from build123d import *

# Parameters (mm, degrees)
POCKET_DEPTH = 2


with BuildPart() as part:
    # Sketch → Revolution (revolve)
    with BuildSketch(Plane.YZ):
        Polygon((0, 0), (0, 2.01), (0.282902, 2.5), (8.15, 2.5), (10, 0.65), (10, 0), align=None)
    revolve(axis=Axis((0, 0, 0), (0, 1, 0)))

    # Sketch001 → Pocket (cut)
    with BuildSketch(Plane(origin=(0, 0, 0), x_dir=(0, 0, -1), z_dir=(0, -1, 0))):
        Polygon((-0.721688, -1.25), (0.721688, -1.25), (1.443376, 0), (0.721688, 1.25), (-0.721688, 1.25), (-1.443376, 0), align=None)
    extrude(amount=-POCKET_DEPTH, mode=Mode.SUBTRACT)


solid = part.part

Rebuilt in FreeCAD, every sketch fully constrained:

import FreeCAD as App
import Part
import Sketcher
Q = App.Units.Quantity


def add_polygon(sketch, points):
    """Adds a closed chain of lines whose ends are joined by coincident constraints."""
    first, n = sketch.GeometryCount, len(points)
    for a, b in zip(points, points[1:] + points[:1]):
        sketch.addGeometry(Part.LineSegment(App.Vector(*a, 0), App.Vector(*b, 0)), False)
    for i in range(n):
        sketch.addConstraint(Sketcher.Constraint("Coincident", first + i, 2, first + (i + 1) % n, 1))

doc = App.newDocument("Part")
body = doc.addObject("PartDesign::Body", "Body")

# Sketch on YZ plane
sketch1 = body.newObject("Sketcher::SketchObject", "Sketch")
sketch1.AttachmentSupport = (doc.getObject("YZ_Plane"), [""])
sketch1.MapMode = "FlatFace"
add_polygon(sketch1, [(0, 2), (0, 0), (10, 0), (10, 0.7), (8.2, 2.5), (0.3, 2.5)])  # lines 0-5
sketch1.addConstraint([
    Sketcher.Constraint("Vertical", 0),
    Sketcher.Constraint("Horizontal", 1),
    Sketcher.Constraint("Vertical", 2),
    Sketcher.Constraint("Horizontal", 4),
    Sketcher.Constraint("Coincident", 0, 2, -1, 1),
    Sketcher.Constraint("DistanceX", 1, 1, 1, 2, Q("10 mm")),
    Sketcher.Constraint("Angle", 3, Q("135 deg")),
    Sketcher.Constraint("DistanceY", 0, 2, 0, 1, Q("2.01 mm")),
    Sketcher.Constraint("DistanceY", 2, 1, 2, 2, Q("0.65 mm")),
    Sketcher.Constraint("DistanceY", -1, 1, 3, 2, Q("2.5 mm")),
    Sketcher.Constraint("DistanceX", 4, 2, 4, 1, Q("7.867098 mm")),
])
revolution = body.newObject("PartDesign::Revolution", "Revolution")
revolution.Profile = sketch1
revolution.ReferenceAxis = (sketch1, ["H_Axis"])
revolution.Angle = 360

# Sketch on XZ plane
sketch2 = body.newObject("Sketcher::SketchObject", "Sketch001")
sketch2.AttachmentSupport = (doc.getObject("XZ_Plane"), [""])
sketch2.MapMode = "FlatFace"
add_polygon(sketch2, [(-1.2, 0.7), (-1.2, -0.7), (0, -1.4), (1.2, -0.7), (1.2, 0.7), (0, 1.4)])  # lines 0-5
sketch2.addConstraint([
    Sketcher.Constraint("Vertical", 0),
    Sketcher.Constraint("Vertical", 3),
    Sketcher.Constraint("Symmetric", 0, 2, 3, 2, -1, 1),
    Sketcher.Constraint("Symmetric", 1, 2, 4, 2, -1, 1),
    Sketcher.Constraint("PointOnObject", 1, 2, -2),
    Sketcher.Constraint("Parallel", 2, 5),
    Sketcher.Constraint("Horizontal", 0, 2, 2, 2),
    Sketcher.Constraint("Angle", 1, Q("-30.000006 deg")),
    Sketcher.Constraint("DistanceX", 0, 2, 2, 2, Q("2.5 mm")),
    Sketcher.Constraint("DistanceY", 0, 2, 0, 1, Q("1.443376 mm")),
])
pocket1 = body.newObject("PartDesign::Pocket", "Pocket")
pocket1.Profile = sketch2
pocket1.Length = 2

doc.recompute()
